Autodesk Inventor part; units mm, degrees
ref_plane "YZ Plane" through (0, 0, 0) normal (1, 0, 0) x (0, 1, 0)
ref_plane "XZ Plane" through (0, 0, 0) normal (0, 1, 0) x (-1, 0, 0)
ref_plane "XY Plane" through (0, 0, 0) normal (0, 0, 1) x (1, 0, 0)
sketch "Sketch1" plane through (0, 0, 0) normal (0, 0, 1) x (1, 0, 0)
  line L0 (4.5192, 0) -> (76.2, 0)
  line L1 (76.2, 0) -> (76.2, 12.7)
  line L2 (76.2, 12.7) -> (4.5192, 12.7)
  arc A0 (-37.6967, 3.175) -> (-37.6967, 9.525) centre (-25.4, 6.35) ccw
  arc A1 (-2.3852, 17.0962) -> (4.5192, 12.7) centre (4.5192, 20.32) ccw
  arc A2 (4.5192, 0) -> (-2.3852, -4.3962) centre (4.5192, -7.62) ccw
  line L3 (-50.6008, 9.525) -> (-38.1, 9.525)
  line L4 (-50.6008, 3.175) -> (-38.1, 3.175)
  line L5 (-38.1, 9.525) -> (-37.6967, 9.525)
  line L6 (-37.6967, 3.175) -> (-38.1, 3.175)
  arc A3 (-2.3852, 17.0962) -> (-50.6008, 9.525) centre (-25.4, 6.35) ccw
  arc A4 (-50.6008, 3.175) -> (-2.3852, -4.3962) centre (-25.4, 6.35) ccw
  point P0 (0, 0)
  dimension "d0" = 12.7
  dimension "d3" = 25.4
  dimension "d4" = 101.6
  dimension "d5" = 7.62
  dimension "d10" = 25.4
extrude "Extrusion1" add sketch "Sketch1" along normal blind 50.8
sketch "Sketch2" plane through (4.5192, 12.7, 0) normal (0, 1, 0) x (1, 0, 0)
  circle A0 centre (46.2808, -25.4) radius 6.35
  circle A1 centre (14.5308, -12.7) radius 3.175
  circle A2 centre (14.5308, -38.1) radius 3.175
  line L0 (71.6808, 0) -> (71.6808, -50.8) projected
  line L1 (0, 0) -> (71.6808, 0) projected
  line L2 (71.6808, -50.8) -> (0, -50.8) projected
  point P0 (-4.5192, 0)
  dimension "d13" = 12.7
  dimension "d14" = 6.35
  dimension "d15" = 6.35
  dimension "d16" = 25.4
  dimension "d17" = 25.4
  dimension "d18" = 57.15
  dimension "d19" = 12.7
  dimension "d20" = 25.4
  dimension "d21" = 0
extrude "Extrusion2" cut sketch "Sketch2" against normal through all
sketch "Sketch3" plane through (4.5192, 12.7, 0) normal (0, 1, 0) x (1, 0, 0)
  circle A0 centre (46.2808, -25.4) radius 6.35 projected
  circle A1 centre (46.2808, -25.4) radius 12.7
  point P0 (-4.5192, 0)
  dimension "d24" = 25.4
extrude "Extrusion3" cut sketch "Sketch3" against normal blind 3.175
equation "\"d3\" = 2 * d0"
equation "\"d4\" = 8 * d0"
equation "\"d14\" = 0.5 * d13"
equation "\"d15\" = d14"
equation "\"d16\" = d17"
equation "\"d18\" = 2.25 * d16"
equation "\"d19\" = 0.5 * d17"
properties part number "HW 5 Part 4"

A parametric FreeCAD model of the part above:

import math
import FreeCAD as App
import Part
import Sketcher
Q = App.Units.Quantity

doc = App.newDocument("Part")
body = doc.addObject("PartDesign::Body", "Body")

# Sketch on XY plane
sketch1 = body.newObject("Sketcher::SketchObject", "Sketch")
sketch1.AttachmentSupport = (doc.getObject("XY_Plane"), [""])
sketch1.MapMode = "FlatFace"
sketch1.addGeometry([
    Part.ArcOfCircle(Part.Circle(App.Vector(4.5192, -7.62, 0), App.Vector(0, 0, 1), 7.62), math.radians(90), math.radians(154.971205)),  # 0
    Part.LineSegment(App.Vector(4.5192, 0, 0), App.Vector(76.2, 0, 0)),  # 1
    Part.LineSegment(App.Vector(76.2, 0, 0), App.Vector(76.2, 12.7, 0)),  # 2
    Part.LineSegment(App.Vector(76.2, 12.7, 0), App.Vector(4.5192, 12.7, 0)),  # 3
    Part.ArcOfCircle(Part.Circle(App.Vector(4.5192, 20.32, 0), App.Vector(0, 0, 1), 7.619949), math.radians(-154.971205), math.radians(-90)),  # 4
    Part.ArcOfCircle(Part.Circle(App.Vector(-25.4, 6.35, 0), App.Vector(0, 0, 1), 25.400019), math.radians(25.029076), math.radians(172.81925)),  # 5
    Part.LineSegment(App.Vector(-50.6008, 9.525, 0), App.Vector(-37.6967, 9.525, 0)),  # 6
    Part.ArcOfCircle(Part.Circle(App.Vector(-25.4, 6.35, 0), App.Vector(0, 0, 1), 12.699979), math.radians(-165.522463), math.radians(165.522463)),  # 7
    Part.LineSegment(App.Vector(-37.6967, 3.175, 0), App.Vector(-50.6008, 3.175, 0)),  # 8
    Part.ArcOfCircle(Part.Circle(App.Vector(-25.4, 6.35, 0), App.Vector(0, 0, 1), 25.400036), math.radians(-172.81925), math.radians(-25.029076)),  # 9
], False)
sketch1.addConstraint([
    Sketcher.Constraint("Tangent", 0, 1, 1, 1),
    Sketcher.Constraint("Coincident", 1, 2, 2, 1),
    Sketcher.Constraint("Coincident", 2, 2, 3, 1),
    Sketcher.Constraint("Tangent", 3, 2, 4, 2),
    Sketcher.Constraint("Tangent", 4, 1, 5, 1),
    Sketcher.Constraint("Coincident", 5, 2, 6, 1),
    Sketcher.Constraint("Coincident", 6, 2, 7, 2),
    Sketcher.Constraint("Coincident", 7, 1, 8, 1),
    Sketcher.Constraint("Coincident", 8, 2, 9, 1),
    Sketcher.Constraint("Tangent", 9, 2, 0, 2),
    Sketcher.Constraint("Horizontal", 1),
    Sketcher.Constraint("Vertical", 2),
    Sketcher.Constraint("Horizontal", 3),
    Sketcher.Constraint("Horizontal", 6),
    Sketcher.Constraint("Horizontal", 8),
    Sketcher.Constraint("Coincident", 7, 3, 5, 3),
    Sketcher.Constraint("Coincident", 9, 3, 5, 3),
    Sketcher.Constraint("Equal", 0, 4),
    Sketcher.Constraint("Equal", 5, 9),
    Sketcher.Constraint("PointOnObject", 0, 1, -1),
    Sketcher.Constraint("Vertical", 0, 3, 4, 3),
    Sketcher.Constraint("Vertical", 6, 2, 7, 1),
    Sketcher.Constraint("Radius", 5, Q("1 in")),
    Sketcher.Constraint("Radius", 0, Q("0.3 in")),
    Sketcher.Constraint("Radius", 7, Q("0.5 in")),
    Sketcher.Constraint("DistanceY", 2, 1, 2, 2, Q("0.5 in")),
    Sketcher.Constraint("DistanceX", 5, 3, -1, 1, Q("1 in")),
    Sketcher.Constraint("DistanceX", 5, 3, 1, 2, Q("4 in")),
    Sketcher.Constraint("DistanceY", 7, 1, 6, 2, Q("0.25 in")),
])
pad1 = body.newObject("PartDesign::Pad", "Pad")
pad1.Profile = sketch1
pad1.Length = Q("2 in")

# Sketch on XZ plane
sketch2 = body.newObject("Sketcher::SketchObject", "Sketch001")
sketch2.AttachmentSupport = (doc.getObject("XZ_Plane"), [""])
sketch2.MapMode = "FlatFace"
sketch2.AttachmentOffset = App.Placement(App.Vector(0, 0, -0.5 * 25.4), App.Rotation())
sketch2.addGeometry([
    Part.Circle(App.Vector(50.8, 25.4, 0), App.Vector(0, 0, 1), 6.35),
    Part.Circle(App.Vector(19.05, 12.7, 0), App.Vector(0, 0, 1), 3.175),
    Part.Circle(App.Vector(19.05, 38.1, 0), App.Vector(0, 0, 1), 3.175),
], False)
sketch2.addConstraint([
    Sketcher.Constraint("Equal", 1, 2),
    Sketcher.Constraint("Vertical", 1, 3, 2, 3),
    Sketcher.Constraint("Diameter", 0, Q("0.5 in")),
    Sketcher.Constraint("Diameter", 1, Q("0.25 in")),
    Sketcher.Constraint("DistanceY", -1, 1, 0, 3, Q("1 in")),
    Sketcher.Constraint("DistanceY", 1, 3, 2, 3, Q("1 in")),
    Sketcher.Constraint("DistanceY", -1, 1, 1, 3, Q("0.5 in")),
    Sketcher.Constraint("DistanceX", -1, 1, 0, 3, Q("2 in")),
    Sketcher.Constraint("DistanceX", -1, 1, 1, 3, Q("0.75 in")),
])
pocket1 = body.newObject("PartDesign::Pocket", "Pocket")
pocket1.Profile = sketch2
pocket1.Type = "ThroughAll"
pocket1.Reversed = True

# Sketch on XZ plane
sketch3 = body.newObject("Sketcher::SketchObject", "Sketch002")
sketch3.AttachmentSupport = (doc.getObject("XZ_Plane"), [""])
sketch3.MapMode = "FlatFace"
sketch3.AttachmentOffset = App.Placement(App.Vector(0, 0, -0.5 * 25.4), App.Rotation())
sketch3.addGeometry([
    Part.Circle(App.Vector(50.8, 25.4, 0), App.Vector(0, 0, 1), 12.7),
    Part.Circle(App.Vector(50.8, 25.4, 0), App.Vector(0, 0, 1), 6.35),
], False)
sketch3.addConstraint([
    Sketcher.Constraint("Coincident", 1, 3, 0, 3),
    Sketcher.Constraint("Diameter", 0, Q("1 in")),
    Sketcher.Constraint("DistanceY", -1, 1, 0, 3, Q("1 in")),
    Sketcher.Constraint("Diameter", 1, Q("0.5 in")),
    Sketcher.Constraint("DistanceX", -1, 1, 0, 3, Q("2 in")),
])
pocket2 = body.newObject("PartDesign::Pocket", "Pocket001")
pocket2.Profile = sketch3
pocket2.Length = Q("0.125 in")
pocket2.Reversed = True

doc.recompute()
